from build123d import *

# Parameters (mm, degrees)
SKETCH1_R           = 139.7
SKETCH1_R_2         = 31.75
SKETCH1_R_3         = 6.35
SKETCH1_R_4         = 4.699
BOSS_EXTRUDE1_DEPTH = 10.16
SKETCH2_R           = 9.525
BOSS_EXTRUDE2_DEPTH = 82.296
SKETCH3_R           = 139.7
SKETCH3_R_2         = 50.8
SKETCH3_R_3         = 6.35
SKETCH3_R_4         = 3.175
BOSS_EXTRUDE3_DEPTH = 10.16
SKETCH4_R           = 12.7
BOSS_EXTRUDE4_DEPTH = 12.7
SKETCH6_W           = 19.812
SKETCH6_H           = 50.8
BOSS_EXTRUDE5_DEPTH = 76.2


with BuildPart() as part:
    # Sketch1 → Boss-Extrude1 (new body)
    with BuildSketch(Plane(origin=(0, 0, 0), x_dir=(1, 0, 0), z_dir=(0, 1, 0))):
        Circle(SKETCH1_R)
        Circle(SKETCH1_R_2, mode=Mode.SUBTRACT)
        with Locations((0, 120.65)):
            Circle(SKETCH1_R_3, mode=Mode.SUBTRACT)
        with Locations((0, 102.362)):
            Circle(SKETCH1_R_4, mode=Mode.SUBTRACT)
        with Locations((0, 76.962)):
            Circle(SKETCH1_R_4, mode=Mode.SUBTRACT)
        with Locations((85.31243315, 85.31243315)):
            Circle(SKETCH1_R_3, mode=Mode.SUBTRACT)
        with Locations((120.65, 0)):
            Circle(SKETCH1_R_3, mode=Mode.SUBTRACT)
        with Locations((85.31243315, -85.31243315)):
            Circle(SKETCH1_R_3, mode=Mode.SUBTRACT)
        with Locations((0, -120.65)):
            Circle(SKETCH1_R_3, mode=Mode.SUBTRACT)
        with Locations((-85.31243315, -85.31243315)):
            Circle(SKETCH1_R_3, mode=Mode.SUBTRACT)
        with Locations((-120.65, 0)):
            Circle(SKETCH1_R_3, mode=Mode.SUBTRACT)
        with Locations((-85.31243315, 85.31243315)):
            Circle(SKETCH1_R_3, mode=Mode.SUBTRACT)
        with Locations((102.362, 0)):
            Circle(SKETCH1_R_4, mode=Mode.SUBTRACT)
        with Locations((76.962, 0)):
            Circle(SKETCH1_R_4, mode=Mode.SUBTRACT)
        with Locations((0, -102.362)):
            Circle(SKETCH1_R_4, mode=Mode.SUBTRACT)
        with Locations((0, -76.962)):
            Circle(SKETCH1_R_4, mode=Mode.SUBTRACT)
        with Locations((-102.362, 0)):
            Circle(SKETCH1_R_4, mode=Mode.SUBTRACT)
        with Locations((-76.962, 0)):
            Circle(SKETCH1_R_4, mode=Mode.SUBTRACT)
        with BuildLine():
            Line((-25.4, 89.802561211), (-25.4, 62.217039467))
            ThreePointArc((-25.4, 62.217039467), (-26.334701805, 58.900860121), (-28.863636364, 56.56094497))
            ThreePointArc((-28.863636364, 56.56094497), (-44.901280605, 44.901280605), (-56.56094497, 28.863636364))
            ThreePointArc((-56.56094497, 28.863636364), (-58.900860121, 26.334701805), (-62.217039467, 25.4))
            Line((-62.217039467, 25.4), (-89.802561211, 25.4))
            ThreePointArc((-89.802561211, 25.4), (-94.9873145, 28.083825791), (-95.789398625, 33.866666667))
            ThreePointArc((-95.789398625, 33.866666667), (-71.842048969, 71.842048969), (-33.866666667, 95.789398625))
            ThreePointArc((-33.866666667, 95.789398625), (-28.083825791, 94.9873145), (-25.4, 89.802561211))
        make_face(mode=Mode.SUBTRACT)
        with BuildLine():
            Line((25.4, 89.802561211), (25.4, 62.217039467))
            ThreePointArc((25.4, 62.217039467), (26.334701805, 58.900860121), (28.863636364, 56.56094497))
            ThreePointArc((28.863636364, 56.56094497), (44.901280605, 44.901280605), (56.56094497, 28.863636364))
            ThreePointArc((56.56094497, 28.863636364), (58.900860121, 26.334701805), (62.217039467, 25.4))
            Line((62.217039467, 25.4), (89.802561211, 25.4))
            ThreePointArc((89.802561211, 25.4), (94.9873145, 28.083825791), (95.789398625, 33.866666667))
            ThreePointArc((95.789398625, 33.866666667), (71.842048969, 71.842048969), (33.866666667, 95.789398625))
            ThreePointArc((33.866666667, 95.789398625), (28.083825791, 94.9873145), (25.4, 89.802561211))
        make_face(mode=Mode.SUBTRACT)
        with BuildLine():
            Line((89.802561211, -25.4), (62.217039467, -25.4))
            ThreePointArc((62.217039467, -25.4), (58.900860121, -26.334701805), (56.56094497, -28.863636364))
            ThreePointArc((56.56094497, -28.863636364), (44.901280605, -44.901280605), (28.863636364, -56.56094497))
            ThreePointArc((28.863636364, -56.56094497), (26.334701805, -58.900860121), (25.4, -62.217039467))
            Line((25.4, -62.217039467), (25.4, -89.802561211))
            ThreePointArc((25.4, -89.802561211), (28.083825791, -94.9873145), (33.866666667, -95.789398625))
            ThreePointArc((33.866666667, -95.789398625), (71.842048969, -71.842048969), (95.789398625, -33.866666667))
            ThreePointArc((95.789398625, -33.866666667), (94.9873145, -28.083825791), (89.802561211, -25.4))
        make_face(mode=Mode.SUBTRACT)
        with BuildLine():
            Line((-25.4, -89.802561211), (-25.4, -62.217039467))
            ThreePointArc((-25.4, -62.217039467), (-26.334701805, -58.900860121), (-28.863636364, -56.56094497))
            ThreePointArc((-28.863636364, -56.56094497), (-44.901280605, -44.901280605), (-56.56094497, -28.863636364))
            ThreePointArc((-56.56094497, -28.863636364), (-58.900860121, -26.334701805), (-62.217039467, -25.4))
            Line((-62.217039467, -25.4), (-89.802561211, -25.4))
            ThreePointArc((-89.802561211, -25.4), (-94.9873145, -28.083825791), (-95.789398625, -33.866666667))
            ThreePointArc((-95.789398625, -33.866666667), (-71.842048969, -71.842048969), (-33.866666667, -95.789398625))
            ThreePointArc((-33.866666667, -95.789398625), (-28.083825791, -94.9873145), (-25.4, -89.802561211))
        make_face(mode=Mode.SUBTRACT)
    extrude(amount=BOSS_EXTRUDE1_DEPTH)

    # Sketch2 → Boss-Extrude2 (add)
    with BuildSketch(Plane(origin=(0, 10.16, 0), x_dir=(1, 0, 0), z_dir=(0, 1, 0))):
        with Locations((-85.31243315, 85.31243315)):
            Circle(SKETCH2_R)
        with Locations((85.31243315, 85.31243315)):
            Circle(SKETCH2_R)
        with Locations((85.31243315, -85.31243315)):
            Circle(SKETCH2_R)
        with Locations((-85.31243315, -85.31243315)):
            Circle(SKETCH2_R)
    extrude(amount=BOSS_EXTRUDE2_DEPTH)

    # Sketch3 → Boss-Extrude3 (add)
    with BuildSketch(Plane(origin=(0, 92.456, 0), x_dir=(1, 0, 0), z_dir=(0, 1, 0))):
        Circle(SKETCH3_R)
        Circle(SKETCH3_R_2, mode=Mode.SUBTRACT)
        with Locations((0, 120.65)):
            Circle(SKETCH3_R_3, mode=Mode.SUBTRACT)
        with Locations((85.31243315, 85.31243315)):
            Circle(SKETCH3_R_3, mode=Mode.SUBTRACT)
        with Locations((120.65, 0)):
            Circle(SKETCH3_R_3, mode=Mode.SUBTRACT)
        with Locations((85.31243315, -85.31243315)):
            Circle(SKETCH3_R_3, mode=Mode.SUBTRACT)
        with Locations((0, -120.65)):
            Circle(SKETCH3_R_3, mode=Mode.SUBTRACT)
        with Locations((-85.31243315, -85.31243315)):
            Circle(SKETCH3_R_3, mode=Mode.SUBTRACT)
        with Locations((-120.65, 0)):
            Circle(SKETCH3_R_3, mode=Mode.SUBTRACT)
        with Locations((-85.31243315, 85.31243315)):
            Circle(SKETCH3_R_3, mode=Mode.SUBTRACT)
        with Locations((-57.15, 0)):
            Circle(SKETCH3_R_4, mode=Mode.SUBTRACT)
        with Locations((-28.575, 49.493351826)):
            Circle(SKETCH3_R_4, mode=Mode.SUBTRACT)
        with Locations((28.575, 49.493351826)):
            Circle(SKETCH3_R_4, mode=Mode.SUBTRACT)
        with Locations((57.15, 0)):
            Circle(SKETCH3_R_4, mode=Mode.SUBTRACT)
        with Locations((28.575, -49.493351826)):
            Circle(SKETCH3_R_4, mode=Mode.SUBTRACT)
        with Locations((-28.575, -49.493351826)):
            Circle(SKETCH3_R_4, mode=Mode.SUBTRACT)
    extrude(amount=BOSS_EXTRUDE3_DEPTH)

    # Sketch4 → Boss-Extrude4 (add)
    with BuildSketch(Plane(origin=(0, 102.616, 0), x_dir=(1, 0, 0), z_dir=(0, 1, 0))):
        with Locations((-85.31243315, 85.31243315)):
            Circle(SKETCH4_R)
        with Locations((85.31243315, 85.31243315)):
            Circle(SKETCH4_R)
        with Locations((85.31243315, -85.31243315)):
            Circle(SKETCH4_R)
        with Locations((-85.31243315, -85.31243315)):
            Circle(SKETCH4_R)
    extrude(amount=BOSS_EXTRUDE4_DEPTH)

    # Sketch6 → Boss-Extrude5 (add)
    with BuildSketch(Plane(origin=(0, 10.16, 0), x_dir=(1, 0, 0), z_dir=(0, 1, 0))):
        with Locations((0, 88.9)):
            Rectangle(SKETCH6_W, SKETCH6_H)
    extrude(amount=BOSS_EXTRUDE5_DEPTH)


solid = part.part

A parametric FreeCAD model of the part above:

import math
import FreeCAD as App
import Part
import Sketcher
from FreeCAD import Vector
Q = App.Units.Quantity


def add_polygon(sketch, points):
    """Adds a closed chain of lines whose ends are joined by coincident constraints."""
    first, n = sketch.GeometryCount, len(points)
    for a, b in zip(points, points[1:] + points[:1]):
        sketch.addGeometry(Part.LineSegment(App.Vector(*a, 0), App.Vector(*b, 0)), False)
    for i in range(n):
        sketch.addConstraint(Sketcher.Constraint("Coincident", first + i, 2, first + (i + 1) % n, 1))

doc = App.newDocument("Part")
params = doc.addObject("Spreadsheet::Sheet", "Params")
for row, (alias, value) in enumerate([
    ("sketch1_diameter", "11 in"),
    ("sketch1_radius", "4 in"),
    ("sketch1_diameter2", "0.5 in"),
    ("sketch1_diameter3", "2.5 in"),
    ("sketch1_radius2", "2.5 in"),
    ("pad1_length", "0.4 in"),
    ("sketch2_diameter", "0.75 in"),
    ("pad2_length", "3.24 in"),
    ("sketch3_diameter", "11 in"),
    ("sketch3_diameter2", "4 in"),
    ("sketch3_diameter3", "0.5 in"),
    ("sketch3_diameter4", "0.25 in"),
    ("pad3_length", "0.4 in"),
    ("sketch4_diameter", "1 in"),
    ("pad4_length", "0.5 in"),
    ("sketch5_height", "2 in"),
    ("sketch5_width", "0.78 in"),
    ("pad5_length", "3 in"),
], start=1):
    params.set(f"A{row}", alias)
    params.set(f"B{row}", "=" + value)
    params.setAlias(f"B{row}", alias)

body = doc.addObject("PartDesign::Body", "Body")

# Sketch on XZ plane
sketch1 = body.newObject("Sketcher::SketchObject", "Sketch")
sketch1.AttachmentSupport = (doc.getObject("XZ_Plane"), [""])
sketch1.MapMode = "FlatFace"
sketch1.addGeometry([
    Part.Circle(Vector(0, 0, 0), Vector(0, 0, 1), 139.7),  # 0
    Part.Circle(Vector(-85.3, 85.3, 0), Vector(0, 0, 1), 6.3),  # 1
    Part.LineSegment(Vector(-25.4, 62.2, 0), Vector(-25.4, 89.8, 0)),  # 2
    Part.ArcOfCircle(Part.Circle(Vector(-31.8, 89.8, 0), Vector(0, 0, 1), 6.3), math.radians(0), math.radians(109)),  # 3
    Part.ArcOfCircle(Part.Circle(Vector(0, 0, 0), Vector(0, 0, 1), 101.6), math.radians(109), math.radians(161)),  # 4
    Part.ArcOfCircle(Part.Circle(Vector(-89.8, 31.8, 0), Vector(0, 0, 1), 6.3), math.radians(161), math.radians(270)),  # 5
    Part.LineSegment(Vector(-89.8, 25.4, 0), Vector(-62.2, 25.4, 0)),  # 6
    Part.ArcOfCircle(Part.Circle(Vector(-62.2, 31.8, 0), Vector(0, 0, 1), 6.4), math.radians(-90), math.radians(-27)),  # 7
    Part.ArcOfCircle(Part.Circle(Vector(0, 0, 0), Vector(0, 0, 1), 63.5), math.radians(117), math.radians(153)),  # 8
    Part.ArcOfCircle(Part.Circle(Vector(-31.8, 62.2, 0), Vector(0, 0, 1), 6.4), math.radians(-63), math.radians(0)),  # 9
    Part.Circle(Vector(0, 120.7, 0), Vector(0, 0, 1), 6.3),  # 10
    Part.Circle(Vector(0, 102.4, 0), Vector(0, 0, 1), 4.7),  # 11
    Part.Circle(Vector(0, 77, 0), Vector(0, 0, 1), 4.7),  # 12
    Part.Circle(Vector(85.3, 85.3, 0), Vector(0, 0, 1), 6.3),  # 13
    Part.LineSegment(Vector(62.2, 25.4, 0), Vector(89.8, 25.4, 0)),  # 14
    Part.ArcOfCircle(Part.Circle(Vector(89.8, 31.8, 0), Vector(0, 0, 1), 6.3), math.radians(-90), math.radians(19)),  # 15
    Part.ArcOfCircle(Part.Circle(Vector(0, 0, 0), Vector(0, 0, 1), 101.6), math.radians(19), math.radians(71)),  # 16
    Part.ArcOfCircle(Part.Circle(Vector(31.8, 89.8, 0), Vector(0, 0, 1), 6.3), math.radians(71), math.radians(180)),  # 17
    Part.LineSegment(Vector(25.4, 89.8, 0), Vector(25.4, 62.2, 0)),  # 18
    Part.ArcOfCircle(Part.Circle(Vector(31.8, 62.2, 0), Vector(0, 0, 1), 6.4), math.radians(-180), math.radians(-117)),  # 19
    Part.ArcOfCircle(Part.Circle(Vector(0, 0, 0), Vector(0, 0, 1), 63.5), math.radians(27), math.radians(63)),  # 20
    Part.ArcOfCircle(Part.Circle(Vector(62.2, 31.8, 0), Vector(0, 0, 1), 6.4), math.radians(-153), math.radians(-90)),  # 21
    Part.Circle(Vector(-120.7, 0, 0), Vector(0, 0, 1), 6.3),  # 22
    Part.Circle(Vector(-102.4, 0, 0), Vector(0, 0, 1), 4.7),  # 23
    Part.Circle(Vector(-77, 0, 0), Vector(0, 0, 1), 4.7),  # 24
    Part.ArcOfCircle(Part.Circle(Vector(-31.8, -89.8, 0), Vector(0, 0, 1), 6.3), math.radians(-109), math.radians(0)),  # 25
    Part.LineSegment(Vector(-25.4, -89.8, 0), Vector(-25.4, -62.2, 0)),  # 26
    Part.ArcOfCircle(Part.Circle(Vector(-31.8, -62.2, 0), Vector(0, 0, 1), 6.4), math.radians(0), math.radians(63)),  # 27
    Part.ArcOfCircle(Part.Circle(Vector(0, 0, 0), Vector(0, 0, 1), 63.5), math.radians(-153), math.radians(-117)),  # 28
    Part.ArcOfCircle(Part.Circle(Vector(-62.2, -31.8, 0), Vector(0, 0, 1), 6.4), math.radians(27), math.radians(90)),  # 29
    Part.LineSegment(Vector(-62.2, -25.4, 0), Vector(-89.8, -25.4, 0)),  # 30
    Part.ArcOfCircle(Part.Circle(Vector(-89.8, -31.8, 0), Vector(0, 0, 1), 6.3), math.radians(90), math.radians(199)),  # 31
    Part.ArcOfCircle(Part.Circle(Vector(0, 0, 0), Vector(0, 0, 1), 101.6), math.radians(-161), math.radians(-109)),  # 32
    Part.Circle(Vector(-85.3, -85.3, 0), Vector(0, 0, 1), 6.3),  # 33
    Part.Circle(Vector(0, 0, 0), Vector(0, 0, 1), 31.8),  # 34
    Part.LineSegment(Vector(25.4, -62.2, 0), Vector(25.4, -89.8, 0)),  # 35
    Part.ArcOfCircle(Part.Circle(Vector(31.8, -89.8, 0), Vector(0, 0, 1), 6.3), math.radians(180), math.radians(289)),  # 36
    Part.ArcOfCircle(Part.Circle(Vector(0, 0, 0), Vector(0, 0, 1), 101.6), math.radians(-71), math.radians(-19)),  # 37
    Part.ArcOfCircle(Part.Circle(Vector(89.8, -31.8, 0), Vector(0, 0, 1), 6.3), math.radians(-19), math.radians(90)),  # 38
    Part.LineSegment(Vector(89.8, -25.4, 0), Vector(62.2, -25.4, 0)),  # 39
    Part.ArcOfCircle(Part.Circle(Vector(62.2, -31.8, 0), Vector(0, 0, 1), 6.4), math.radians(90), math.radians(153)),  # 40
    Part.ArcOfCircle(Part.Circle(Vector(0, 0, 0), Vector(0, 0, 1), 63.5), math.radians(-63), math.radians(-27)),  # 41
    Part.ArcOfCircle(Part.Circle(Vector(31.8, -62.2, 0), Vector(0, 0, 1), 6.4), math.radians(117), math.radians(180)),  # 42
    Part.Circle(Vector(77, 0, 0), Vector(0, 0, 1), 4.7),  # 43
    Part.Circle(Vector(102.4, 0, 0), Vector(0, 0, 1), 4.7),  # 44
    Part.Circle(Vector(120.7, 0, 0), Vector(0, 0, 1), 6.3),  # 45
    Part.Circle(Vector(0, -77, 0), Vector(0, 0, 1), 4.7),  # 46
    Part.Circle(Vector(0, -102.4, 0), Vector(0, 0, 1), 4.7),  # 47
    Part.Circle(Vector(0, -120.7, 0), Vector(0, 0, 1), 6.3),  # 48
    Part.Circle(Vector(85.3, -85.3, 0), Vector(0, 0, 1), 6.3),  # 49
], False)
sketch1.addConstraint([
    Sketcher.Constraint("Tangent", 2, 2, 3, 1),
    Sketcher.Constraint("Tangent", 3, 2, 4, 1),
    Sketcher.Constraint("Tangent", 4, 2, 5, 1),
    Sketcher.Constraint("Tangent", 5, 2, 6, 1),
    Sketcher.Constraint("Tangent", 6, 2, 7, 1),
    Sketcher.Constraint("Tangent", 7, 2, 8, 2),
    Sketcher.Constraint("Tangent", 8, 1, 9, 1),
    Sketcher.Constraint("Tangent", 9, 2, 2, 1),
    Sketcher.Constraint("Tangent", 14, 2, 15, 1),
    Sketcher.Constraint("Tangent", 15, 2, 16, 1),
    Sketcher.Constraint("Tangent", 16, 2, 17, 1),
    Sketcher.Constraint("Tangent", 17, 2, 18, 1),
    Sketcher.Constraint("Tangent", 18, 2, 19, 1),
    Sketcher.Constraint("Tangent", 19, 2, 20, 2),
    Sketcher.Constraint("Tangent", 20, 1, 21, 1),
    Sketcher.Constraint("Tangent", 21, 2, 14, 1),
    Sketcher.Constraint("Tangent", 25, 2, 26, 1),
    Sketcher.Constraint("Tangent", 26, 2, 27, 1),
    Sketcher.Constraint("Tangent", 27, 2, 28, 2),
    Sketcher.Constraint("Tangent", 28, 1, 29, 1),
    Sketcher.Constraint("Tangent", 29, 2, 30, 1),
    Sketcher.Constraint("Tangent", 30, 2, 31, 1),
    Sketcher.Constraint("Tangent", 31, 2, 32, 1),
    Sketcher.Constraint("Tangent", 32, 2, 25, 1),
    Sketcher.Constraint("Tangent", 35, 2, 36, 1),
    Sketcher.Constraint("Tangent", 36, 2, 37, 1),
    Sketcher.Constraint("Tangent", 37, 2, 38, 1),
    Sketcher.Constraint("Tangent", 38, 2, 39, 1),
    Sketcher.Constraint("Tangent", 39, 2, 40, 1),
    Sketcher.Constraint("Tangent", 40, 2, 41, 2),
    Sketcher.Constraint("Tangent", 41, 1, 42, 1),
    Sketcher.Constraint("Tangent", 42, 2, 35, 1),
    Sketcher.Constraint("Vertical", 2),
    Sketcher.Constraint("Horizontal", 6),
    Sketcher.Constraint("Horizontal", 14),
    Sketcher.Constraint("Vertical", 18),
    Sketcher.Constraint("Vertical", 26),
    Sketcher.Constraint("Horizontal", 30),
    Sketcher.Constraint("Vertical", 35),
    Sketcher.Constraint("Horizontal", 39),
    Sketcher.Constraint("Coincident", 0, 3, -1, 1),
    Sketcher.Constraint("Coincident", 4, 3, -1, 1),
    Sketcher.Constraint("Coincident", 8, 3, -1, 1),
    Sketcher.Constraint("Coincident", 16, 3, -1, 1),
    Sketcher.Constraint("Coincident", 20, 3, -1, 1),
    Sketcher.Constraint("Coincident", 28, 3, -1, 1),
    Sketcher.Constraint("Coincident", 32, 3, -1, 1),
    Sketcher.Constraint("Coincident", 34, 3, -1, 1),
    Sketcher.Constraint("Coincident", 37, 3, -1, 1),
    Sketcher.Constraint("Coincident", 41, 3, -1, 1),
    Sketcher.Constraint("Equal", 1, 3),
    Sketcher.Constraint("Equal", 3, 5),
    Sketcher.Constraint("Equal", 5, 7),
    Sketcher.Constraint("Equal", 7, 9),
    Sketcher.Constraint("Equal", 9, 10),
    Sketcher.Constraint("Equal", 11, 12),
    Sketcher.Constraint("Equal", 10, 13),
    Sketcher.Constraint("Equal", 13, 15),
    Sketcher.Constraint("Equal", 4, 16),
    Sketcher.Constraint("Equal", 15, 17),
    Sketcher.Constraint("Equal", 17, 19),
    Sketcher.Constraint("Equal", 8, 20),
    Sketcher.Constraint("Equal", 19, 21),
    Sketcher.Constraint("Equal", 21, 22),
    Sketcher.Constraint("Equal", 12, 23),
    Sketcher.Constraint("Equal", 23, 24),
    Sketcher.Constraint("Equal", 22, 25),
    Sketcher.Constraint("Equal", 25, 27),
    Sketcher.Constraint("Equal", 20, 28),
    Sketcher.Constraint("Equal", 27, 29),
    Sketcher.Constraint("Equal", 29, 31),
    Sketcher.Constraint("Equal", 16, 32),
    Sketcher.Constraint("Equal", 31, 33),
    Sketcher.Constraint("Equal", 33, 36),
    Sketcher.Constraint("Equal", 32, 37),
    Sketcher.Constraint("Equal", 36, 38),
    Sketcher.Constraint("Equal", 38, 40),
    Sketcher.Constraint("Equal", 28, 41),
    Sketcher.Constraint("Equal", 40, 42),
    Sketcher.Constraint("Equal", 24, 43),
    Sketcher.Constraint("Equal", 43, 44),
    Sketcher.Constraint("Equal", 42, 45),
    Sketcher.Constraint("Equal", 44, 46),
    Sketcher.Constraint("Equal", 46, 47),
    Sketcher.Constraint("Equal", 45, 48),
    Sketcher.Constraint("Equal", 48, 49),
    Sketcher.Constraint("Symmetric", 13, 3, 33, 3, -1, 1),
    Sketcher.Constraint("Symmetric", 24, 3, 43, 3, -1, 1),
    Sketcher.Constraint("Symmetric", 23, 3, 44, 3, -1, 1),
    Sketcher.Constraint("Symmetric", 22, 3, 45, 3, -1, 1),
    Sketcher.Constraint("Symmetric", 12, 3, 46, 3, -1, 1),
    Sketcher.Constraint("Symmetric", 11, 3, 47, 3, -1, 1),
    Sketcher.Constraint("Symmetric", 10, 3, 48, 3, -1, 1),
    Sketcher.Constraint("Symmetric", 1, 3, 49, 3, -1, 1),
    Sketcher.Constraint("Symmetric", 1, 3, 13, 3, -2),
    Sketcher.Constraint("PointOnObject", 10, 3, -2),
    Sketcher.Constraint("PointOnObject", 11, 3, -2),
    Sketcher.Constraint("PointOnObject", 12, 3, -2),
    Sketcher.Constraint("PointOnObject", 22, 3, -1),
    Sketcher.Constraint("PointOnObject", 23, 3, -1),
    Sketcher.Constraint("PointOnObject", 24, 3, -1),
    Sketcher.Constraint("Horizontal", 7, 3, 15, 3),
    Sketcher.Constraint("Horizontal", 3, 3, 17, 3),
    Sketcher.Constraint("Horizontal", 25, 3, 36, 3),
    Sketcher.Constraint("Horizontal", 31, 3, 38, 3),
    Sketcher.Constraint("Vertical", 9, 3, 25, 3),
    Sketcher.Constraint("Vertical", 7, 3, 29, 3),
    Sketcher.Constraint("Equal", 39, 2),
    Sketcher.Constraint("Diameter", 0, Q("11 in")),
    Sketcher.Constraint("Radius", 4, Q("4 in")),
    Sketcher.Constraint("Diameter", 1, Q("0.5 in")),
    Sketcher.Constraint("Diameter", 34, Q("2.5 in")),
    Sketcher.Constraint("Radius", 8, Q("2.5 in")),
    Sketcher.Constraint("Diameter", 11, Q("0.37 in")),
    Sketcher.Constraint("DistanceX", 2, 2, -1, 1, Q("1 in")),
    Sketcher.Constraint("DistanceY", -1, 1, 10, 3, Q("4.75 in")),
    Sketcher.Constraint("DistanceY", -1, 1, 11, 3, Q("4.03 in")),
    Sketcher.Constraint("DistanceY", -1, 1, 12, 3, Q("3.03 in")),
    Sketcher.Constraint("DistanceX", 22, 3, -1, 1, Q("4.75 in")),
    Sketcher.Constraint("DistanceX", 23, 3, -1, 1, Q("4.03 in")),
    Sketcher.Constraint("DistanceX", 24, 3, -1, 1, Q("3.03 in")),
    Sketcher.Constraint("DistanceX", 1, 3, -1, 1, 85.312433),
    Sketcher.Constraint("DistanceY", -1, 1, 1, 3, 85.312433),
])
sketch1.setExpression("Constraints[108]", "Params.sketch1_diameter")
sketch1.setExpression("Constraints[109]", "Params.sketch1_radius")
sketch1.setExpression("Constraints[110]", "Params.sketch1_diameter2")
sketch1.setExpression("Constraints[111]", "Params.sketch1_diameter3")
sketch1.setExpression("Constraints[112]", "Params.sketch1_radius2")
pad1 = body.newObject("PartDesign::Pad", "Pad")
pad1.Profile = sketch1
pad1.setExpression("Length", "Params.pad1_length")
pad1.Reversed = True

# Sketch on XZ plane
sketch2 = body.newObject("Sketcher::SketchObject", "Sketch001")
sketch2.AttachmentSupport = (doc.getObject("XZ_Plane"), [""])
sketch2.MapMode = "FlatFace"
sketch2.AttachmentOffset = App.Placement(Vector(0, 0, -0.4 * 25.4), App.Rotation())
sketch2.addGeometry([
    Part.Circle(Vector(-85, -85, 0), Vector(0, 0, 1), 10),
    Part.Circle(Vector(85, -85, 0), Vector(0, 0, 1), 10),
    Part.Circle(Vector(85, 85, 0), Vector(0, 0, 1), 10),
    Part.Circle(Vector(-85, 85, 0), Vector(0, 0, 1), 10),
], False)
sketch2.addConstraint([
    Sketcher.Constraint("Equal", 0, 1),
    Sketcher.Constraint("Equal", 1, 2),
    Sketcher.Constraint("Equal", 2, 3),
    Sketcher.Constraint("Symmetric", 0, 3, 2, 3, -1, 1),
    Sketcher.Constraint("Symmetric", 1, 3, 3, 3, -1, 1),
    Sketcher.Constraint("Symmetric", 0, 3, 1, 3, -2),
    Sketcher.Constraint("Diameter", 0, Q("0.75 in")),
    Sketcher.Constraint("DistanceX", 0, 3, -1, 1, 85.312433),
    Sketcher.Constraint("DistanceY", 0, 3, -1, 1, 85.312433),
])
sketch2.setExpression("Constraints[6]", "Params.sketch2_diameter")
pad2 = body.newObject("PartDesign::Pad", "Pad001")
pad2.Profile = sketch2
pad2.setExpression("Length", "Params.pad2_length")
pad2.Reversed = True

# Sketch on XZ plane
sketch3 = body.newObject("Sketcher::SketchObject", "Sketch002")
sketch3.AttachmentSupport = (doc.getObject("XZ_Plane"), [""])
sketch3.MapMode = "FlatFace"
sketch3.AttachmentOffset = App.Placement(Vector(0, 0, -3.64 * 25.4), App.Rotation())
sketch3.addGeometry([
    Part.Circle(Vector(0, 0, 0), Vector(0, 0, 1), 139.7),  # 0
    Part.Circle(Vector(-85.3, 85.3, 0), Vector(0, 0, 1), 6.3),  # 1
    Part.Circle(Vector(-28.6, 49.5, 0), Vector(0, 0, 1), 3.2),  # 2
    Part.Circle(Vector(0, 120.7, 0), Vector(0, 0, 1), 6.3),  # 3
    Part.Circle(Vector(85.3, 85.3, 0), Vector(0, 0, 1), 6.3),  # 4
    Part.Circle(Vector(28.6, 49.5, 0), Vector(0, 0, 1), 3.2),  # 5
    Part.Circle(Vector(-120.7, 0, 0), Vector(0, 0, 1), 6.3),  # 6
    Part.Circle(Vector(-57.1, 0, 0), Vector(0, 0, 1), 3.2),  # 7
    Part.Circle(Vector(-28.6, -49.5, 0), Vector(0, 0, 1), 3.2),  # 8
    Part.Circle(Vector(-85.3, -85.3, 0), Vector(0, 0, 1), 6.3),  # 9
    Part.Circle(Vector(0, 0, 0), Vector(0, 0, 1), 50.8),  # 10
    Part.Circle(Vector(57.1, 0, 0), Vector(0, 0, 1), 3.2),  # 11
    Part.Circle(Vector(28.6, -49.5, 0), Vector(0, 0, 1), 3.2),  # 12
    Part.Circle(Vector(120.7, 0, 0), Vector(0, 0, 1), 6.3),  # 13
    Part.Circle(Vector(0, -120.7, 0), Vector(0, 0, 1), 6.3),  # 14
    Part.Circle(Vector(85.3, -85.3, 0), Vector(0, 0, 1), 6.3),  # 15
], False)
sketch3.addConstraint([
    Sketcher.Constraint("Coincident", 0, 3, -1, 1),
    Sketcher.Constraint("Coincident", 10, 3, -1, 1),
    Sketcher.Constraint("Equal", 1, 3),
    Sketcher.Constraint("Equal", 3, 4),
    Sketcher.Constraint("Equal", 2, 5),
    Sketcher.Constraint("Equal", 4, 6),
    Sketcher.Constraint("Equal", 5, 7),
    Sketcher.Constraint("Equal", 7, 8),
    Sketcher.Constraint("Equal", 6, 9),
    Sketcher.Constraint("Equal", 8, 11),
    Sketcher.Constraint("Equal", 11, 12),
    Sketcher.Constraint("Equal", 9, 13),
    Sketcher.Constraint("Equal", 13, 14),
    Sketcher.Constraint("Equal", 14, 15),
    Sketcher.Constraint("Symmetric", 5, 3, 8, 3, -1, 1),
    Sketcher.Constraint("Symmetric", 4, 3, 9, 3, -1, 1),
    Sketcher.Constraint("Symmetric", 7, 3, 11, 3, -1, 1),
    Sketcher.Constraint("Symmetric", 2, 3, 12, 3, -1, 1),
    Sketcher.Constraint("Symmetric", 6, 3, 13, 3, -1, 1),
    Sketcher.Constraint("Symmetric", 3, 3, 14, 3, -1, 1),
    Sketcher.Constraint("Symmetric", 1, 3, 15, 3, -1, 1),
    Sketcher.Constraint("Symmetric", 1, 3, 4, 3, -2),
    Sketcher.Constraint("Symmetric", 2, 3, 5, 3, -2),
    Sketcher.Constraint("PointOnObject", 3, 3, -2),
    Sketcher.Constraint("PointOnObject", 6, 3, -1),
    Sketcher.Constraint("PointOnObject", 7, 3, -1),
    Sketcher.Constraint("Diameter", 0, Q("11 in")),
    Sketcher.Constraint("Diameter", 10, Q("4 in")),
    Sketcher.Constraint("Diameter", 1, Q("0.5 in")),
    Sketcher.Constraint("Diameter", 2, Q("0.25 in")),
    Sketcher.Constraint("DistanceX", 6, 3, 7, 3, Q("2.5 in")),
    Sketcher.Constraint("DistanceY", -1, 1, 3, 3, Q("4.75 in")),
    Sketcher.Constraint("DistanceX", 6, 3, -1, 1, Q("4.75 in")),
    Sketcher.Constraint("DistanceX", 2, 3, 5, 3, Q("2.25 in")),
    Sketcher.Constraint("DistanceY", 2, 3, 1, 3, Q("1.4102001 in")),
    Sketcher.Constraint("DistanceY", -1, 1, 2, 3, 49.493352),
    Sketcher.Constraint("DistanceX", 1, 3, -1, 1, 85.312433),
])
sketch3.setExpression("Constraints[26]", "Params.sketch3_diameter")
sketch3.setExpression("Constraints[27]", "Params.sketch3_diameter2")
sketch3.setExpression("Constraints[28]", "Params.sketch3_diameter3")
sketch3.setExpression("Constraints[29]", "Params.sketch3_diameter4")
pad3 = body.newObject("PartDesign::Pad", "Pad002")
pad3.Profile = sketch3
pad3.setExpression("Length", "Params.pad3_length")
pad3.Reversed = True

# Sketch on XZ plane
sketch4 = body.newObject("Sketcher::SketchObject", "Sketch003")
sketch4.AttachmentSupport = (doc.getObject("XZ_Plane"), [""])
sketch4.MapMode = "FlatFace"
sketch4.AttachmentOffset = App.Placement(Vector(0, 0, -4.04 * 25.4), App.Rotation())
sketch4.addGeometry([
    Part.Circle(Vector(-85, -85, 0), Vector(0, 0, 1), 13),
    Part.Circle(Vector(85, -85, 0), Vector(0, 0, 1), 13),
    Part.Circle(Vector(85, 85, 0), Vector(0, 0, 1), 13),
    Part.Circle(Vector(-85, 85, 0), Vector(0, 0, 1), 13),
], False)
sketch4.addConstraint([
    Sketcher.Constraint("Equal", 0, 1),
    Sketcher.Constraint("Equal", 1, 2),
    Sketcher.Constraint("Equal", 2, 3),
    Sketcher.Constraint("Symmetric", 0, 3, 2, 3, -1, 1),
    Sketcher.Constraint("Symmetric", 1, 3, 3, 3, -1, 1),
    Sketcher.Constraint("Symmetric", 0, 3, 1, 3, -2),
    Sketcher.Constraint("Diameter", 0, Q("1 in")),
    Sketcher.Constraint("DistanceX", 0, 3, -1, 1, 85.312433),
    Sketcher.Constraint("DistanceY", 0, 3, -1, 1, 85.312433),
])
sketch4.setExpression("Constraints[6]", "Params.sketch4_diameter")
pad4 = body.newObject("PartDesign::Pad", "Pad003")
pad4.Profile = sketch4
pad4.setExpression("Length", "Params.pad4_length")
pad4.Reversed = True

# Sketch on XZ plane
sketch5 = body.newObject("Sketcher::SketchObject", "Sketch004")
sketch5.AttachmentSupport = (doc.getObject("XZ_Plane"), [""])
sketch5.MapMode = "FlatFace"
sketch5.AttachmentOffset = App.Placement(Vector(0, 0, -0.4 * 25.4), App.Rotation())
add_polygon(sketch5, [(-10, -114), (-10, -64), (10, -64), (10, -114)])  # lines 0-3
sketch5.addConstraint([
    Sketcher.Constraint("Vertical", 0),
    Sketcher.Constraint("Horizontal", 1),
    Sketcher.Constraint("Vertical", 2),
    Sketcher.Constraint("Horizontal", 3),
    Sketcher.Constraint("DistanceY", 0, 1, 0, 2, Q("2 in")),
    Sketcher.Constraint("DistanceX", 1, 1, 1, 2, Q("0.78 in")),
    Sketcher.Constraint("DistanceY", 0, 2, -1, 1, Q("2.5 in")),
    Sketcher.Constraint("DistanceX", 0, 2, -1, 1, Q("0.39 in")),
])
sketch5.setExpression("Constraints[8]", "Params.sketch5_height")
sketch5.setExpression("Constraints[9]", "Params.sketch5_width")
pad5 = body.newObject("PartDesign::Pad", "Pad004")
pad5.Profile = sketch5
pad5.setExpression("Length", "Params.pad5_length")
pad5.Reversed = True

doc.recompute()
